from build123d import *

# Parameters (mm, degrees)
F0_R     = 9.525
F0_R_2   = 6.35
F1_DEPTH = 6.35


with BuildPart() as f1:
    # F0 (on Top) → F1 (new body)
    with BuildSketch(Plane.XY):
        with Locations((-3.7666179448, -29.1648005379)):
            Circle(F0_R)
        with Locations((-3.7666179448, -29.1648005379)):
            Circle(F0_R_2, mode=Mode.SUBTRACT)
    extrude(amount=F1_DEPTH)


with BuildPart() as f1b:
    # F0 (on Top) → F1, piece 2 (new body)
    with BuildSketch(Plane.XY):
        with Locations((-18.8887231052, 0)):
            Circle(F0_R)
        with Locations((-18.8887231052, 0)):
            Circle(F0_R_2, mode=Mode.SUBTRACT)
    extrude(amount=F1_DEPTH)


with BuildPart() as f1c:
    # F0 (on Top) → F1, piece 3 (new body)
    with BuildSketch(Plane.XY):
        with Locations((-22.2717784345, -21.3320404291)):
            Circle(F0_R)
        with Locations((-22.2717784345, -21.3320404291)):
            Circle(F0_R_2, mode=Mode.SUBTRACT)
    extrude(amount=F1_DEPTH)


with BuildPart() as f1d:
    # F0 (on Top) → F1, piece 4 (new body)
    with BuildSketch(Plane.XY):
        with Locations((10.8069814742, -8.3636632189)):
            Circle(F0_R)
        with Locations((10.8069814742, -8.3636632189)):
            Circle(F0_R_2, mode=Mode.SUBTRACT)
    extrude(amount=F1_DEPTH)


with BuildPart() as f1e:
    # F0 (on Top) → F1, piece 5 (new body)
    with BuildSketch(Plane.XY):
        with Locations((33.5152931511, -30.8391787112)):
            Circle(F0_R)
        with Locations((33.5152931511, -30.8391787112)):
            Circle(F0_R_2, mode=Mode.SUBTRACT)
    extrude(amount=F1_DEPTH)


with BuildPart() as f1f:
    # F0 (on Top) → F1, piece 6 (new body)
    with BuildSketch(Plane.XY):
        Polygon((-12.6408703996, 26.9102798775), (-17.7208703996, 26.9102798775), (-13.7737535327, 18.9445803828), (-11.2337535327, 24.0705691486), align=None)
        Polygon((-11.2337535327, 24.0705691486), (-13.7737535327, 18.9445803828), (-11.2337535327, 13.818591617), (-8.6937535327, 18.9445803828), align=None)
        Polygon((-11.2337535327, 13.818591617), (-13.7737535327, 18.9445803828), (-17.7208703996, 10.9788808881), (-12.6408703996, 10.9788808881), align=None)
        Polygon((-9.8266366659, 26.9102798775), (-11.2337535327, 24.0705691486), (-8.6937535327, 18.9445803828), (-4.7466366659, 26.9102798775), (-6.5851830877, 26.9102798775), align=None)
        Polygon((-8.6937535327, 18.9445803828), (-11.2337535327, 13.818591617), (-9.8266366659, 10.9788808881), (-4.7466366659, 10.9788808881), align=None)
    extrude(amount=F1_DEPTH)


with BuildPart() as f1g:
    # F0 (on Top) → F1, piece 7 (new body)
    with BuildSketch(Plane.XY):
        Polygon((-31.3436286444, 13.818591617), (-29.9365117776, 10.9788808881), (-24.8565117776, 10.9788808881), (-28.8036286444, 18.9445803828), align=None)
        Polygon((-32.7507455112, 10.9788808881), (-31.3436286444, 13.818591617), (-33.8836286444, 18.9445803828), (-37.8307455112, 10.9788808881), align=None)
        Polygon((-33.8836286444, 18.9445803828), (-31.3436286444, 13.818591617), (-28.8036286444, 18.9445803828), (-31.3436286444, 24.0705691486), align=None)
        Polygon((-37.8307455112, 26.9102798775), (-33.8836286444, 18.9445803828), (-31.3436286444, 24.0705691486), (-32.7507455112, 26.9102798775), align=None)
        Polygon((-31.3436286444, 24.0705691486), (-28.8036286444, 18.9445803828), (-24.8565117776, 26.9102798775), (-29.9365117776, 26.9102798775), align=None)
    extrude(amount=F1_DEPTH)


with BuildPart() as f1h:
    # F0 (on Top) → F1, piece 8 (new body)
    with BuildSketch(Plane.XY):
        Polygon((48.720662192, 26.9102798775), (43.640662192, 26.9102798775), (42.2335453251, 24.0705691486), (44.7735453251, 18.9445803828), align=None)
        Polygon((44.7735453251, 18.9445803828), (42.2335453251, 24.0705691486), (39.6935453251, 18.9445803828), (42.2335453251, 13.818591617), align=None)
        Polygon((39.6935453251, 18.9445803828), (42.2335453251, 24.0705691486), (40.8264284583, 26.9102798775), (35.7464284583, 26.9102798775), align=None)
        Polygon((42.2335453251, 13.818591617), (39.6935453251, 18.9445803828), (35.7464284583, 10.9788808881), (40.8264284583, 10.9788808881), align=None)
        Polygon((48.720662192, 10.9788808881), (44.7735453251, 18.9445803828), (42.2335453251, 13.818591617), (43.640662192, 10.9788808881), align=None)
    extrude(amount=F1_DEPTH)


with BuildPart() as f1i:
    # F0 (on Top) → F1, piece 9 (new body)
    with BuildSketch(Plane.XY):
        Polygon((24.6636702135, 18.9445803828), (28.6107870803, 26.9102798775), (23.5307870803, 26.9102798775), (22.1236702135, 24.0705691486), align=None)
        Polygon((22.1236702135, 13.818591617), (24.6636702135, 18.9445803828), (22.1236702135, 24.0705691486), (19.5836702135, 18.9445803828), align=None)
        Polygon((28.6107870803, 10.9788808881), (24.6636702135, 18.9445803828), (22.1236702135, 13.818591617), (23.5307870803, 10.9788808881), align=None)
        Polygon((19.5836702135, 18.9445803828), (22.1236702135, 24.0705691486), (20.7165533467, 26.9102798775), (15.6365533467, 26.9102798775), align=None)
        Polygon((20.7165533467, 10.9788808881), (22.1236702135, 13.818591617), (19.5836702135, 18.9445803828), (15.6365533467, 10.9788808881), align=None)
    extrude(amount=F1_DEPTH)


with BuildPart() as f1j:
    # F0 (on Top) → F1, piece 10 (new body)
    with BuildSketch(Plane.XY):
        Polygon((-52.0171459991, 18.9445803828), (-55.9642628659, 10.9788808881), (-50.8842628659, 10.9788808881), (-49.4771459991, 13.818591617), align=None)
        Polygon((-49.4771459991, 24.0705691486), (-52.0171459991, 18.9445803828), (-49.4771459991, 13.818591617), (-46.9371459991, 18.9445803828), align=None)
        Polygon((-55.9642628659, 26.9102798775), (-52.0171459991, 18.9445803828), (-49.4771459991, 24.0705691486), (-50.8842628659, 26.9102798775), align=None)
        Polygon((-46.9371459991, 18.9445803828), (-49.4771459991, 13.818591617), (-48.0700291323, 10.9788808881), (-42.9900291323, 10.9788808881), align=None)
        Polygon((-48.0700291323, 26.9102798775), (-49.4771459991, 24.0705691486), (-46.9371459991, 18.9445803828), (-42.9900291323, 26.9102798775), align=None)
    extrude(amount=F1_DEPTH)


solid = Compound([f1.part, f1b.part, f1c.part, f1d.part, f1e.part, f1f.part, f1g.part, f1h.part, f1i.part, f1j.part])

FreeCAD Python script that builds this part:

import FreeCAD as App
import Part
import Sketcher
Q = App.Units.Quantity

doc = App.newDocument("Part")
body = doc.addObject("PartDesign::Body", "Body")

# Sketch on XY plane
sketch1 = body.newObject("Sketcher::SketchObject", "Sketch")
sketch1.AttachmentSupport = (doc.getObject("XY_Plane"), [""])
sketch1.MapMode = "FlatFace"
sketch1.addGeometry([
    Part.Circle(App.Vector(-4, -29, 0), App.Vector(0, 0, 1), 10),
    Part.Circle(App.Vector(-4, -29, 0), App.Vector(0, 0, 1), 6),
], False)
sketch1.addConstraint([
    Sketcher.Constraint("Coincident", 1, 3, 0, 3),
    Sketcher.Constraint("Diameter", 1, Q("0.5 in")),
    Sketcher.Constraint("Diameter", 0, Q("0.75 in")),
    Sketcher.Constraint("DistanceY", 0, 3, -1, 1, 29.164801),
    Sketcher.Constraint("DistanceX", 0, 3, -1, 1, 3.766618),
])
pad1 = body.newObject("PartDesign::Pad", "Pad")
pad1.Profile = sketch1
pad1.Length = Q("0.25 in")
body2 = doc.addObject("PartDesign::Body", "Body001")

# Sketch on XY plane
sketch2 = body2.newObject("Sketcher::SketchObject", "Sketch001")
sketch2.AttachmentSupport = (doc.getObject("XY_Plane001"), [""])
sketch2.MapMode = "FlatFace"
sketch2.addGeometry([
    Part.Circle(App.Vector(-19, 0, 0), App.Vector(0, 0, 1), 10),
    Part.Circle(App.Vector(-19, 0, 0), App.Vector(0, 0, 1), 6),
], False)
sketch2.addConstraint([
    Sketcher.Constraint("Coincident", 1, 3, 0, 3),
    Sketcher.Constraint("PointOnObject", 0, 3, -1),
    Sketcher.Constraint("Diameter", 1, Q("0.5 in")),
    Sketcher.Constraint("Diameter", 0, Q("0.75 in")),
    Sketcher.Constraint("DistanceX", 0, 3, -1, 1, 18.888723),
])
pad2 = body2.newObject("PartDesign::Pad", "Pad001")
pad2.Profile = sketch2
pad2.Length = Q("0.25 in")
body3 = doc.addObject("PartDesign::Body", "Body002")

# Sketch on XY plane
sketch3 = body3.newObject("Sketcher::SketchObject", "Sketch002")
sketch3.AttachmentSupport = (doc.getObject("XY_Plane002"), [""])
sketch3.MapMode = "FlatFace"
sketch3.addGeometry([
    Part.Circle(App.Vector(-22, -21, 0), App.Vector(0, 0, 1), 10),
    Part.Circle(App.Vector(-22, -21, 0), App.Vector(0, 0, 1), 6),
], False)
sketch3.addConstraint([
    Sketcher.Constraint("Coincident", 1, 3, 0, 3),
    Sketcher.Constraint("Diameter", 1, Q("0.5 in")),
    Sketcher.Constraint("Diameter", 0, Q("0.75 in")),
    Sketcher.Constraint("DistanceX", 0, 3, -1, 1, 22.271778),
    Sketcher.Constraint("DistanceY", 0, 3, -1, 1, 21.33204),
])
pad3 = body3.newObject("PartDesign::Pad", "Pad002")
pad3.Profile = sketch3
pad3.Length = Q("0.25 in")
body4 = doc.addObject("PartDesign::Body", "Body003")

# Sketch on XY plane
sketch4 = body4.newObject("Sketcher::SketchObject", "Sketch003")
sketch4.AttachmentSupport = (doc.getObject("XY_Plane003"), [""])
sketch4.MapMode = "FlatFace"
sketch4.addGeometry([
    Part.Circle(App.Vector(11, -8, 0), App.Vector(0, 0, 1), 10),
    Part.Circle(App.Vector(11, -8, 0), App.Vector(0, 0, 1), 6),
], False)
sketch4.addConstraint([
    Sketcher.Constraint("Coincident", 1, 3, 0, 3),
    Sketcher.Constraint("Diameter", 1, Q("0.5 in")),
    Sketcher.Constraint("Diameter", 0, Q("0.75 in")),
    Sketcher.Constraint("DistanceX", -1, 1, 0, 3, 10.806981),
    Sketcher.Constraint("DistanceY", 0, 3, -1, 1, 8.363663),
])
pad4 = body4.newObject("PartDesign::Pad", "Pad003")
pad4.Profile = sketch4
pad4.Length = Q("0.25 in")
body5 = doc.addObject("PartDesign::Body", "Body004")

# Sketch on XY plane
sketch5 = body5.newObject("Sketcher::SketchObject", "Sketch004")
sketch5.AttachmentSupport = (doc.getObject("XY_Plane004"), [""])
sketch5.MapMode = "FlatFace"
sketch5.addGeometry([
    Part.Circle(App.Vector(34, -31, 0), App.Vector(0, 0, 1), 10),
    Part.Circle(App.Vector(34, -31, 0), App.Vector(0, 0, 1), 6),
], False)
sketch5.addConstraint([
    Sketcher.Constraint("Coincident", 1, 3, 0, 3),
    Sketcher.Constraint("Diameter", 1, Q("0.5 in")),
    Sketcher.Constraint("Diameter", 0, Q("0.75 in")),
    Sketcher.Constraint("DistanceY", 0, 3, -1, 1, 30.839179),
    Sketcher.Constraint("DistanceX", -1, 1, 0, 3, 33.515293),
])
pad5 = body5.newObject("PartDesign::Pad", "Pad004")
pad5.Profile = sketch5
pad5.Length = Q("0.25 in")
body6 = doc.addObject("PartDesign::Body", "Body005")

# Sketch on XY plane
sketch6 = body6.newObject("Sketcher::SketchObject", "Sketch005")
sketch6.AttachmentSupport = (doc.getObject("XY_Plane005"), [""])
sketch6.MapMode = "FlatFace"
sketch6.addGeometry([
    Part.LineSegment(App.Vector(-12.6, 26.9, 0), App.Vector(-17.7, 26.9, 0)),  # 0
    Part.LineSegment(App.Vector(-17.7, 26.9, 0), App.Vector(-13.8, 18.9, 0)),  # 1
    Part.LineSegment(App.Vector(-13.8, 18.9, 0), App.Vector(-17.7, 11, 0)),  # 2
    Part.LineSegment(App.Vector(-17.7, 11, 0), App.Vector(-12.6, 11, 0)),  # 3
    Part.LineSegment(App.Vector(-12.6, 11, 0), App.Vector(-11.2, 13.8, 0)),  # 4
    Part.LineSegment(App.Vector(-11.2, 13.8, 0), App.Vector(-9.8, 11, 0)),  # 5
    Part.LineSegment(App.Vector(-9.8, 11, 0), App.Vector(-4.7, 11, 0)),  # 6
    Part.LineSegment(App.Vector(-4.7, 11, 0), App.Vector(-8.7, 18.9, 0)),  # 7
    Part.LineSegment(App.Vector(-8.7, 18.9, 0), App.Vector(-4.7, 26.9, 0)),  # 8
    Part.LineSegment(App.Vector(-4.7, 26.9, 0), App.Vector(-9.8, 26.9, 0)),  # 9
    Part.LineSegment(App.Vector(-9.8, 26.9, 0), App.Vector(-11.2, 24.1, 0)),  # 10
    Part.LineSegment(App.Vector(-11.2, 24.1, 0), App.Vector(-12.6, 26.9, 0)),  # 11
], False)
sketch6.addConstraint([
    Sketcher.Constraint("Coincident", 0, 2, 1, 1),
    Sketcher.Constraint("Coincident", 1, 2, 2, 1),
    Sketcher.Constraint("Coincident", 2, 2, 3, 1),
    Sketcher.Constraint("Coincident", 3, 2, 4, 1),
    Sketcher.Constraint("Coincident", 4, 2, 5, 1),
    Sketcher.Constraint("Coincident", 5, 2, 6, 1),
    Sketcher.Constraint("Coincident", 6, 2, 7, 1),
    Sketcher.Constraint("Coincident", 7, 2, 8, 1),
    Sketcher.Constraint("Coincident", 8, 2, 9, 1),
    Sketcher.Constraint("Coincident", 9, 2, 10, 1),
    Sketcher.Constraint("Coincident", 10, 2, 11, 1),
    Sketcher.Constraint("Coincident", 11, 2, 0, 1),
    Sketcher.Constraint("Horizontal", 0),
    Sketcher.Constraint("Horizontal", 3),
    Sketcher.Constraint("Horizontal", 6),
    Sketcher.Constraint("Horizontal", 9),
    Sketcher.Constraint("Parallel", 2, 4),
    Sketcher.Constraint("Parallel", 1, 5),
    Sketcher.Constraint("Parallel", 5, 7),
    Sketcher.Constraint("Parallel", 4, 8),
    Sketcher.Constraint("Parallel", 8, 10),
    Sketcher.Constraint("Parallel", 7, 11),
    Sketcher.Constraint("Horizontal", 3, 2, 5, 2),
    Sketcher.Constraint("Horizontal", 1, 2, 7, 2),
    Sketcher.Constraint("Horizontal", 0, 2, 8, 2),
    Sketcher.Constraint("Vertical", 0, 2, 2, 2),
    Sketcher.Constraint("Vertical", 6, 2, 8, 2),
    Sketcher.Constraint("Vertical", 5, 2, 9, 2),
    Sketcher.Constraint("Vertical", 4, 2, 10, 2),
    Sketcher.Constraint("Equal", 3, 6),
    Sketcher.Constraint("DistanceX", 0, 2, 0, 1, Q("0.2 in")),
    Sketcher.Constraint("DistanceX", 1, 2, 4, 2, Q("0.1 in")),
    Sketcher.Constraint("Distance", 1, Q("0.35 in")),
    Sketcher.Constraint("DistanceY", 1, 2, 0, 2, 7.965699),
    Sketcher.Constraint("DistanceX", 0, 2, -1, 1, 17.72087),
    Sketcher.Constraint("DistanceY", -1, 1, 0, 2, 26.91028),
])
pad6 = body6.newObject("PartDesign::Pad", "Pad005")
pad6.Profile = sketch6
pad6.Length = Q("0.25 in")
body7 = doc.addObject("PartDesign::Body", "Body006")

# Sketch on XY plane
sketch7 = body7.newObject("Sketcher::SketchObject", "Sketch006")
sketch7.AttachmentSupport = (doc.getObject("XY_Plane006"), [""])
sketch7.MapMode = "FlatFace"
sketch7.addGeometry([
    Part.LineSegment(App.Vector(-31.3, 13.8, 0), App.Vector(-29.9, 11, 0)),  # 0
    Part.LineSegment(App.Vector(-29.9, 11, 0), App.Vector(-24.9, 11, 0)),  # 1
    Part.LineSegment(App.Vector(-24.9, 11, 0), App.Vector(-28.8, 18.9, 0)),  # 2
    Part.LineSegment(App.Vector(-28.8, 18.9, 0), App.Vector(-24.9, 26.9, 0)),  # 3
    Part.LineSegment(App.Vector(-24.9, 26.9, 0), App.Vector(-29.9, 26.9, 0)),  # 4
    Part.LineSegment(App.Vector(-29.9, 26.9, 0), App.Vector(-31.3, 24.1, 0)),  # 5
    Part.LineSegment(App.Vector(-31.3, 24.1, 0), App.Vector(-32.8, 26.9, 0)),  # 6
    Part.LineSegment(App.Vector(-32.8, 26.9, 0), App.Vector(-37.8, 26.9, 0)),  # 7
    Part.LineSegment(App.Vector(-37.8, 26.9, 0), App.Vector(-33.9, 18.9, 0)),  # 8
    Part.LineSegment(App.Vector(-33.9, 18.9, 0), App.Vector(-37.8, 11, 0)),  # 9
    Part.LineSegment(App.Vector(-37.8, 11, 0), App.Vector(-32.8, 11, 0)),  # 10
    Part.LineSegment(App.Vector(-32.8, 11, 0), App.Vector(-31.3, 13.8, 0)),  # 11
], False)
sketch7.addConstraint([
    Sketcher.Constraint("Coincident", 0, 2, 1, 1),
    Sketcher.Constraint("Coincident", 1, 2, 2, 1),
    Sketcher.Constraint("Coincident", 2, 2, 3, 1),
    Sketcher.Constraint("Coincident", 3, 2, 4, 1),
    Sketcher.Constraint("Coincident", 4, 2, 5, 1),
    Sketcher.Constraint("Coincident", 5, 2, 6, 1),
    Sketcher.Constraint("Coincident", 6, 2, 7, 1),
    Sketcher.Constraint("Coincident", 7, 2, 8, 1),
    Sketcher.Constraint("Coincident", 8, 2, 9, 1),
    Sketcher.Constraint("Coincident", 9, 2, 10, 1),
    Sketcher.Constraint("Coincident", 10, 2, 11, 1),
    Sketcher.Constraint("Coincident", 11, 2, 0, 1),
    Sketcher.Constraint("Horizontal", 1),
    Sketcher.Constraint("Horizontal", 4),
    Sketcher.Constraint("Horizontal", 7),
    Sketcher.Constraint("Horizontal", 10),
    Sketcher.Constraint("Parallel", 0, 2),
    Sketcher.Constraint("Parallel", 3, 5),
    Sketcher.Constraint("Parallel", 2, 6),
    Sketcher.Constraint("Parallel", 6, 8),
    Sketcher.Constraint("Parallel", 5, 9),
    Sketcher.Constraint("Parallel", 9, 11),
    Sketcher.Constraint("Horizontal", 4, 2, 6, 2),
    Sketcher.Constraint("Horizontal", 2, 2, 8, 2),
    Sketcher.Constraint("Horizontal", 1, 2, 9, 2),
    Sketcher.Constraint("Vertical", 1, 2, 3, 2),
    Sketcher.Constraint("Vertical", 0, 2, 4, 2),
    Sketcher.Constraint("Vertical", 7, 2, 9, 2),
    Sketcher.Constraint("Vertical", 6, 2, 10, 2),
    Sketcher.Constraint("Equal", 4, 7),
    Sketcher.Constraint("DistanceX", 1, 1, 1, 2, Q("0.2 in")),
    Sketcher.Constraint("DistanceX", 5, 2, 2, 2, Q("0.1 in")),
    Sketcher.Constraint("Distance", 2, Q("0.35 in")),
    Sketcher.Constraint("DistanceY", 0, 2, 2, 2, 7.965699),
    Sketcher.Constraint("DistanceX", 0, 2, -1, 1, 29.936512),
    Sketcher.Constraint("DistanceY", -1, 1, 0, 2, 10.978881),
])
pad7 = body7.newObject("PartDesign::Pad", "Pad006")
pad7.Profile = sketch7
pad7.Length = Q("0.25 in")
body8 = doc.addObject("PartDesign::Body", "Body007")

# Sketch on XY plane
sketch8 = body8.newObject("Sketcher::SketchObject", "Sketch007")
sketch8.AttachmentSupport = (doc.getObject("XY_Plane007"), [""])
sketch8.MapMode = "FlatFace"
sketch8.addGeometry([
    Part.LineSegment(App.Vector(48.7, 26.9, 0), App.Vector(43.6, 26.9, 0)),  # 0
    Part.LineSegment(App.Vector(43.6, 26.9, 0), App.Vector(42.2, 24.1, 0)),  # 1
    Part.LineSegment(App.Vector(42.2, 24.1, 0), App.Vector(40.8, 26.9, 0)),  # 2
    Part.LineSegment(App.Vector(40.8, 26.9, 0), App.Vector(35.7, 26.9, 0)),  # 3
    Part.LineSegment(App.Vector(35.7, 26.9, 0), App.Vector(39.7, 18.9, 0)),  # 4
    Part.LineSegment(App.Vector(39.7, 18.9, 0), App.Vector(35.7, 11, 0)),  # 5
    Part.LineSegment(App.Vector(35.7, 11, 0), App.Vector(40.8, 11, 0)),  # 6
    Part.LineSegment(App.Vector(40.8, 11, 0), App.Vector(42.2, 13.8, 0)),  # 7
    Part.LineSegment(App.Vector(42.2, 13.8, 0), App.Vector(43.6, 11, 0)),  # 8
    Part.LineSegment(App.Vector(43.6, 11, 0), App.Vector(48.7, 11, 0)),  # 9
    Part.LineSegment(App.Vector(48.7, 11, 0), App.Vector(44.8, 18.9, 0)),  # 10
    Part.LineSegment(App.Vector(44.8, 18.9, 0), App.Vector(48.7, 26.9, 0)),  # 11
], False)
sketch8.addConstraint([
    Sketcher.Constraint("Coincident", 0, 2, 1, 1),
    Sketcher.Constraint("Coincident", 1, 2, 2, 1),
    Sketcher.Constraint("Coincident", 2, 2, 3, 1),
    Sketcher.Constraint("Coincident", 3, 2, 4, 1),
    Sketcher.Constraint("Coincident", 4, 2, 5, 1),
    Sketcher.Constraint("Coincident", 5, 2, 6, 1),
    Sketcher.Constraint("Coincident", 6, 2, 7, 1),
    Sketcher.Constraint("Coincident", 7, 2, 8, 1),
    Sketcher.Constraint("Coincident", 8, 2, 9, 1),
    Sketcher.Constraint("Coincident", 9, 2, 10, 1),
    Sketcher.Constraint("Coincident", 10, 2, 11, 1),
    Sketcher.Constraint("Coincident", 11, 2, 0, 1),
    Sketcher.Constraint("Horizontal", 0),
    Sketcher.Constraint("Horizontal", 3),
    Sketcher.Constraint("Horizontal", 6),
    Sketcher.Constraint("Horizontal", 9),
    Sketcher.Constraint("Parallel", 2, 4),
    Sketcher.Constraint("Parallel", 1, 5),
    Sketcher.Constraint("Parallel", 5, 7),
    Sketcher.Constraint("Parallel", 4, 8),
    Sketcher.Constraint("Parallel", 8, 10),
    Sketcher.Constraint("Parallel", 7, 11),
    Sketcher.Constraint("Horizontal", 0, 2, 2, 2),
    Sketcher.Constraint("Horizontal", 6, 2, 8, 2),
    Sketcher.Constraint("Horizontal", 4, 2, 10, 2),
    Sketcher.Constraint("Vertical", 3, 2, 5, 2),
    Sketcher.Constraint("Vertical", 2, 2, 6, 2),
    Sketcher.Constraint("Vertical", 1, 2, 7, 2),
    Sketcher.Constraint("Vertical", 0, 2, 8, 2),
    Sketcher.Constraint("Equal", 0, 3),
    Sketcher.Constraint("DistanceX", 0, 2, 0, 1, Q("0.2 in")),
    Sketcher.Constraint("DistanceX", 4, 2, 1, 2, Q("0.1 in")),
    Sketcher.Constraint("Distance", 4, Q("0.35 in")),
    Sketcher.Constraint("DistanceY", 4, 2, 2, 2, 7.965699),
    Sketcher.Constraint("DistanceY", -1, 1, 0, 2, 26.91028),
    Sketcher.Constraint("DistanceX", -1, 1, 2, 2, 40.826428),
])
pad8 = body8.newObject("PartDesign::Pad", "Pad007")
pad8.Profile = sketch8
pad8.Length = Q("0.25 in")
body9 = doc.addObject("PartDesign::Body", "Body008")

# Sketch on XY plane
sketch9 = body9.newObject("Sketcher::SketchObject", "Sketch008")
sketch9.AttachmentSupport = (doc.getObject("XY_Plane008"), [""])
sketch9.MapMode = "FlatFace"
sketch9.addGeometry([
    Part.LineSegment(App.Vector(28.6, 26.9, 0), App.Vector(23.5, 26.9, 0)),  # 0
    Part.LineSegment(App.Vector(23.5, 26.9, 0), App.Vector(22.1, 24.1, 0)),  # 1
    Part.LineSegment(App.Vector(22.1, 24.1, 0), App.Vector(20.7, 26.9, 0)),  # 2
    Part.LineSegment(App.Vector(20.7, 26.9, 0), App.Vector(15.6, 26.9, 0)),  # 3
    Part.LineSegment(App.Vector(15.6, 26.9, 0), App.Vector(19.6, 18.9, 0)),  # 4
    Part.LineSegment(App.Vector(19.6, 18.9, 0), App.Vector(15.6, 11, 0)),  # 5
    Part.LineSegment(App.Vector(15.6, 11, 0), App.Vector(20.7, 11, 0)),  # 6
    Part.LineSegment(App.Vector(20.7, 11, 0), App.Vector(22.1, 13.8, 0)),  # 7
    Part.LineSegment(App.Vector(22.1, 13.8, 0), App.Vector(23.5, 11, 0)),  # 8
    Part.LineSegment(App.Vector(23.5, 11, 0), App.Vector(28.6, 11, 0)),  # 9
    Part.LineSegment(App.Vector(28.6, 11, 0), App.Vector(24.7, 18.9, 0)),  # 10
    Part.LineSegment(App.Vector(24.7, 18.9, 0), App.Vector(28.6, 26.9, 0)),  # 11
], False)
sketch9.addConstraint([
    Sketcher.Constraint("Coincident", 0, 2, 1, 1),
    Sketcher.Constraint("Coincident", 1, 2, 2, 1),
    Sketcher.Constraint("Coincident", 2, 2, 3, 1),
    Sketcher.Constraint("Coincident", 3, 2, 4, 1),
    Sketcher.Constraint("Coincident", 4, 2, 5, 1),
    Sketcher.Constraint("Coincident", 5, 2, 6, 1),
    Sketcher.Constraint("Coincident", 6, 2, 7, 1),
    Sketcher.Constraint("Coincident", 7, 2, 8, 1),
    Sketcher.Constraint("Coincident", 8, 2, 9, 1),
    Sketcher.Constraint("Coincident", 9, 2, 10, 1),
    Sketcher.Constraint("Coincident", 10, 2, 11, 1),
    Sketcher.Constraint("Coincident", 11, 2, 0, 1),
    Sketcher.Constraint("Horizontal", 0),
    Sketcher.Constraint("Horizontal", 3),
    Sketcher.Constraint("Horizontal", 6),
    Sketcher.Constraint("Horizontal", 9),
    Sketcher.Constraint("Parallel", 2, 4),
    Sketcher.Constraint("Parallel", 1, 5),
    Sketcher.Constraint("Parallel", 5, 7),
    Sketcher.Constraint("Parallel", 4, 8),
    Sketcher.Constraint("Parallel", 8, 10),
    Sketcher.Constraint("Parallel", 7, 11),
    Sketcher.Constraint("Horizontal", 0, 2, 2, 2),
    Sketcher.Constraint("Horizontal", 6, 2, 8, 2),
    Sketcher.Constraint("Horizontal", 4, 2, 10, 2),
    Sketcher.Constraint("Vertical", 3, 2, 5, 2),
    Sketcher.Constraint("Vertical", 2, 2, 6, 2),
    Sketcher.Constraint("Vertical", 1, 2, 7, 2),
    Sketcher.Constraint("Vertical", 0, 2, 8, 2),
    Sketcher.Constraint("Equal", 0, 3),
    Sketcher.Constraint("DistanceX", 0, 2, 0, 1, Q("0.2 in")),
    Sketcher.Constraint("DistanceX", 4, 2, 1, 2, Q("0.1 in")),
    Sketcher.Constraint("Distance", 4, Q("0.35 in")),
    Sketcher.Constraint("DistanceY", 4, 2, 2, 2, 7.965699),
    Sketcher.Constraint("DistanceY", -1, 1, 0, 2, 26.91028),
    Sketcher.Constraint("DistanceX", -1, 1, 1, 2, 22.12367),
])
pad9 = body9.newObject("PartDesign::Pad", "Pad008")
pad9.Profile = sketch9
pad9.Length = Q("0.25 in")
body10 = doc.addObject("PartDesign::Body", "Body009")

# Sketch on XY plane
sketch10 = body10.newObject("Sketcher::SketchObject", "Sketch009")
sketch10.AttachmentSupport = (doc.getObject("XY_Plane009"), [""])
sketch10.MapMode = "FlatFace"
sketch10.addGeometry([
    Part.LineSegment(App.Vector(-56, 11, 0), App.Vector(-50.9, 11, 0)),  # 0
    Part.LineSegment(App.Vector(-50.9, 11, 0), App.Vector(-49.5, 13.8, 0)),  # 1
    Part.LineSegment(App.Vector(-49.5, 13.8, 0), App.Vector(-48.1, 11, 0)),  # 2
    Part.LineSegment(App.Vector(-48.1, 11, 0), App.Vector(-43, 11, 0)),  # 3
    Part.LineSegment(App.Vector(-43, 11, 0), App.Vector(-46.9, 18.9, 0)),  # 4
    Part.LineSegment(App.Vector(-46.9, 18.9, 0), App.Vector(-43, 26.9, 0)),  # 5
    Part.LineSegment(App.Vector(-43, 26.9, 0), App.Vector(-48.1, 26.9, 0)),  # 6
    Part.LineSegment(App.Vector(-48.1, 26.9, 0), App.Vector(-49.5, 24.1, 0)),  # 7
    Part.LineSegment(App.Vector(-49.5, 24.1, 0), App.Vector(-50.9, 26.9, 0)),  # 8
    Part.LineSegment(App.Vector(-50.9, 26.9, 0), App.Vector(-56, 26.9, 0)),  # 9
    Part.LineSegment(App.Vector(-56, 26.9, 0), App.Vector(-52, 18.9, 0)),  # 10
    Part.LineSegment(App.Vector(-52, 18.9, 0), App.Vector(-56, 11, 0)),  # 11
], False)
sketch10.addConstraint([
    Sketcher.Constraint("Coincident", 0, 2, 1, 1),
    Sketcher.Constraint("Coincident", 1, 2, 2, 1),
    Sketcher.Constraint("Coincident", 2, 2, 3, 1),
    Sketcher.Constraint("Coincident", 3, 2, 4, 1),
    Sketcher.Constraint("Coincident", 4, 2, 5, 1),
    Sketcher.Constraint("Coincident", 5, 2, 6, 1),
    Sketcher.Constraint("Coincident", 6, 2, 7, 1),
    Sketcher.Constraint("Coincident", 7, 2, 8, 1),
    Sketcher.Constraint("Coincident", 8, 2, 9, 1),
    Sketcher.Constraint("Coincident", 9, 2, 10, 1),
    Sketcher.Constraint("Coincident", 10, 2, 11, 1),
    Sketcher.Constraint("Coincident", 11, 2, 0, 1),
    Sketcher.Constraint("Horizontal", 0),
    Sketcher.Constraint("Horizontal", 3),
    Sketcher.Constraint("Horizontal", 6),
    Sketcher.Constraint("Horizontal", 9),
    Sketcher.Constraint("Parallel", 2, 4),
    Sketcher.Constraint("Parallel", 1, 5),
    Sketcher.Constraint("Parallel", 5, 7),
    Sketcher.Constraint("Parallel", 4, 8),
    Sketcher.Constraint("Parallel", 8, 10),
    Sketcher.Constraint("Parallel", 7, 11),
    Sketcher.Constraint("Horizontal", 0, 2, 2, 2),
    Sketcher.Constraint("Horizontal", 6, 2, 8, 2),
    Sketcher.Constraint("Horizontal", 4, 2, 10, 2),
    Sketcher.Constraint("Vertical", 3, 2, 5, 2),
    Sketcher.Constraint("Vertical", 2, 2, 6, 2),
    Sketcher.Constraint("Vertical", 1, 2, 7, 2),
    Sketcher.Constraint("Vertical", 0, 2, 8, 2),
    Sketcher.Constraint("Equal", 0, 3),
    Sketcher.Constraint("DistanceX", 0, 1, 0, 2, Q("0.2 in")),
    Sketcher.Constraint("DistanceX", 1, 2, 4, 2, Q("0.1 in")),
    Sketcher.Constraint("Distance", 4, Q("0.35 in")),
    Sketcher.Constraint("DistanceY", 2, 2, 4, 2, 7.965699),
    Sketcher.Constraint("DistanceY", -1, 1, 0, 2, 10.978881),
    Sketcher.Constraint("DistanceX", 2, 2, -1, 1, 48.070029),
])
pad10 = body10.newObject("PartDesign::Pad", "Pad009")
pad10.Profile = sketch10
pad10.Length = Q("0.25 in")

doc.recompute()
